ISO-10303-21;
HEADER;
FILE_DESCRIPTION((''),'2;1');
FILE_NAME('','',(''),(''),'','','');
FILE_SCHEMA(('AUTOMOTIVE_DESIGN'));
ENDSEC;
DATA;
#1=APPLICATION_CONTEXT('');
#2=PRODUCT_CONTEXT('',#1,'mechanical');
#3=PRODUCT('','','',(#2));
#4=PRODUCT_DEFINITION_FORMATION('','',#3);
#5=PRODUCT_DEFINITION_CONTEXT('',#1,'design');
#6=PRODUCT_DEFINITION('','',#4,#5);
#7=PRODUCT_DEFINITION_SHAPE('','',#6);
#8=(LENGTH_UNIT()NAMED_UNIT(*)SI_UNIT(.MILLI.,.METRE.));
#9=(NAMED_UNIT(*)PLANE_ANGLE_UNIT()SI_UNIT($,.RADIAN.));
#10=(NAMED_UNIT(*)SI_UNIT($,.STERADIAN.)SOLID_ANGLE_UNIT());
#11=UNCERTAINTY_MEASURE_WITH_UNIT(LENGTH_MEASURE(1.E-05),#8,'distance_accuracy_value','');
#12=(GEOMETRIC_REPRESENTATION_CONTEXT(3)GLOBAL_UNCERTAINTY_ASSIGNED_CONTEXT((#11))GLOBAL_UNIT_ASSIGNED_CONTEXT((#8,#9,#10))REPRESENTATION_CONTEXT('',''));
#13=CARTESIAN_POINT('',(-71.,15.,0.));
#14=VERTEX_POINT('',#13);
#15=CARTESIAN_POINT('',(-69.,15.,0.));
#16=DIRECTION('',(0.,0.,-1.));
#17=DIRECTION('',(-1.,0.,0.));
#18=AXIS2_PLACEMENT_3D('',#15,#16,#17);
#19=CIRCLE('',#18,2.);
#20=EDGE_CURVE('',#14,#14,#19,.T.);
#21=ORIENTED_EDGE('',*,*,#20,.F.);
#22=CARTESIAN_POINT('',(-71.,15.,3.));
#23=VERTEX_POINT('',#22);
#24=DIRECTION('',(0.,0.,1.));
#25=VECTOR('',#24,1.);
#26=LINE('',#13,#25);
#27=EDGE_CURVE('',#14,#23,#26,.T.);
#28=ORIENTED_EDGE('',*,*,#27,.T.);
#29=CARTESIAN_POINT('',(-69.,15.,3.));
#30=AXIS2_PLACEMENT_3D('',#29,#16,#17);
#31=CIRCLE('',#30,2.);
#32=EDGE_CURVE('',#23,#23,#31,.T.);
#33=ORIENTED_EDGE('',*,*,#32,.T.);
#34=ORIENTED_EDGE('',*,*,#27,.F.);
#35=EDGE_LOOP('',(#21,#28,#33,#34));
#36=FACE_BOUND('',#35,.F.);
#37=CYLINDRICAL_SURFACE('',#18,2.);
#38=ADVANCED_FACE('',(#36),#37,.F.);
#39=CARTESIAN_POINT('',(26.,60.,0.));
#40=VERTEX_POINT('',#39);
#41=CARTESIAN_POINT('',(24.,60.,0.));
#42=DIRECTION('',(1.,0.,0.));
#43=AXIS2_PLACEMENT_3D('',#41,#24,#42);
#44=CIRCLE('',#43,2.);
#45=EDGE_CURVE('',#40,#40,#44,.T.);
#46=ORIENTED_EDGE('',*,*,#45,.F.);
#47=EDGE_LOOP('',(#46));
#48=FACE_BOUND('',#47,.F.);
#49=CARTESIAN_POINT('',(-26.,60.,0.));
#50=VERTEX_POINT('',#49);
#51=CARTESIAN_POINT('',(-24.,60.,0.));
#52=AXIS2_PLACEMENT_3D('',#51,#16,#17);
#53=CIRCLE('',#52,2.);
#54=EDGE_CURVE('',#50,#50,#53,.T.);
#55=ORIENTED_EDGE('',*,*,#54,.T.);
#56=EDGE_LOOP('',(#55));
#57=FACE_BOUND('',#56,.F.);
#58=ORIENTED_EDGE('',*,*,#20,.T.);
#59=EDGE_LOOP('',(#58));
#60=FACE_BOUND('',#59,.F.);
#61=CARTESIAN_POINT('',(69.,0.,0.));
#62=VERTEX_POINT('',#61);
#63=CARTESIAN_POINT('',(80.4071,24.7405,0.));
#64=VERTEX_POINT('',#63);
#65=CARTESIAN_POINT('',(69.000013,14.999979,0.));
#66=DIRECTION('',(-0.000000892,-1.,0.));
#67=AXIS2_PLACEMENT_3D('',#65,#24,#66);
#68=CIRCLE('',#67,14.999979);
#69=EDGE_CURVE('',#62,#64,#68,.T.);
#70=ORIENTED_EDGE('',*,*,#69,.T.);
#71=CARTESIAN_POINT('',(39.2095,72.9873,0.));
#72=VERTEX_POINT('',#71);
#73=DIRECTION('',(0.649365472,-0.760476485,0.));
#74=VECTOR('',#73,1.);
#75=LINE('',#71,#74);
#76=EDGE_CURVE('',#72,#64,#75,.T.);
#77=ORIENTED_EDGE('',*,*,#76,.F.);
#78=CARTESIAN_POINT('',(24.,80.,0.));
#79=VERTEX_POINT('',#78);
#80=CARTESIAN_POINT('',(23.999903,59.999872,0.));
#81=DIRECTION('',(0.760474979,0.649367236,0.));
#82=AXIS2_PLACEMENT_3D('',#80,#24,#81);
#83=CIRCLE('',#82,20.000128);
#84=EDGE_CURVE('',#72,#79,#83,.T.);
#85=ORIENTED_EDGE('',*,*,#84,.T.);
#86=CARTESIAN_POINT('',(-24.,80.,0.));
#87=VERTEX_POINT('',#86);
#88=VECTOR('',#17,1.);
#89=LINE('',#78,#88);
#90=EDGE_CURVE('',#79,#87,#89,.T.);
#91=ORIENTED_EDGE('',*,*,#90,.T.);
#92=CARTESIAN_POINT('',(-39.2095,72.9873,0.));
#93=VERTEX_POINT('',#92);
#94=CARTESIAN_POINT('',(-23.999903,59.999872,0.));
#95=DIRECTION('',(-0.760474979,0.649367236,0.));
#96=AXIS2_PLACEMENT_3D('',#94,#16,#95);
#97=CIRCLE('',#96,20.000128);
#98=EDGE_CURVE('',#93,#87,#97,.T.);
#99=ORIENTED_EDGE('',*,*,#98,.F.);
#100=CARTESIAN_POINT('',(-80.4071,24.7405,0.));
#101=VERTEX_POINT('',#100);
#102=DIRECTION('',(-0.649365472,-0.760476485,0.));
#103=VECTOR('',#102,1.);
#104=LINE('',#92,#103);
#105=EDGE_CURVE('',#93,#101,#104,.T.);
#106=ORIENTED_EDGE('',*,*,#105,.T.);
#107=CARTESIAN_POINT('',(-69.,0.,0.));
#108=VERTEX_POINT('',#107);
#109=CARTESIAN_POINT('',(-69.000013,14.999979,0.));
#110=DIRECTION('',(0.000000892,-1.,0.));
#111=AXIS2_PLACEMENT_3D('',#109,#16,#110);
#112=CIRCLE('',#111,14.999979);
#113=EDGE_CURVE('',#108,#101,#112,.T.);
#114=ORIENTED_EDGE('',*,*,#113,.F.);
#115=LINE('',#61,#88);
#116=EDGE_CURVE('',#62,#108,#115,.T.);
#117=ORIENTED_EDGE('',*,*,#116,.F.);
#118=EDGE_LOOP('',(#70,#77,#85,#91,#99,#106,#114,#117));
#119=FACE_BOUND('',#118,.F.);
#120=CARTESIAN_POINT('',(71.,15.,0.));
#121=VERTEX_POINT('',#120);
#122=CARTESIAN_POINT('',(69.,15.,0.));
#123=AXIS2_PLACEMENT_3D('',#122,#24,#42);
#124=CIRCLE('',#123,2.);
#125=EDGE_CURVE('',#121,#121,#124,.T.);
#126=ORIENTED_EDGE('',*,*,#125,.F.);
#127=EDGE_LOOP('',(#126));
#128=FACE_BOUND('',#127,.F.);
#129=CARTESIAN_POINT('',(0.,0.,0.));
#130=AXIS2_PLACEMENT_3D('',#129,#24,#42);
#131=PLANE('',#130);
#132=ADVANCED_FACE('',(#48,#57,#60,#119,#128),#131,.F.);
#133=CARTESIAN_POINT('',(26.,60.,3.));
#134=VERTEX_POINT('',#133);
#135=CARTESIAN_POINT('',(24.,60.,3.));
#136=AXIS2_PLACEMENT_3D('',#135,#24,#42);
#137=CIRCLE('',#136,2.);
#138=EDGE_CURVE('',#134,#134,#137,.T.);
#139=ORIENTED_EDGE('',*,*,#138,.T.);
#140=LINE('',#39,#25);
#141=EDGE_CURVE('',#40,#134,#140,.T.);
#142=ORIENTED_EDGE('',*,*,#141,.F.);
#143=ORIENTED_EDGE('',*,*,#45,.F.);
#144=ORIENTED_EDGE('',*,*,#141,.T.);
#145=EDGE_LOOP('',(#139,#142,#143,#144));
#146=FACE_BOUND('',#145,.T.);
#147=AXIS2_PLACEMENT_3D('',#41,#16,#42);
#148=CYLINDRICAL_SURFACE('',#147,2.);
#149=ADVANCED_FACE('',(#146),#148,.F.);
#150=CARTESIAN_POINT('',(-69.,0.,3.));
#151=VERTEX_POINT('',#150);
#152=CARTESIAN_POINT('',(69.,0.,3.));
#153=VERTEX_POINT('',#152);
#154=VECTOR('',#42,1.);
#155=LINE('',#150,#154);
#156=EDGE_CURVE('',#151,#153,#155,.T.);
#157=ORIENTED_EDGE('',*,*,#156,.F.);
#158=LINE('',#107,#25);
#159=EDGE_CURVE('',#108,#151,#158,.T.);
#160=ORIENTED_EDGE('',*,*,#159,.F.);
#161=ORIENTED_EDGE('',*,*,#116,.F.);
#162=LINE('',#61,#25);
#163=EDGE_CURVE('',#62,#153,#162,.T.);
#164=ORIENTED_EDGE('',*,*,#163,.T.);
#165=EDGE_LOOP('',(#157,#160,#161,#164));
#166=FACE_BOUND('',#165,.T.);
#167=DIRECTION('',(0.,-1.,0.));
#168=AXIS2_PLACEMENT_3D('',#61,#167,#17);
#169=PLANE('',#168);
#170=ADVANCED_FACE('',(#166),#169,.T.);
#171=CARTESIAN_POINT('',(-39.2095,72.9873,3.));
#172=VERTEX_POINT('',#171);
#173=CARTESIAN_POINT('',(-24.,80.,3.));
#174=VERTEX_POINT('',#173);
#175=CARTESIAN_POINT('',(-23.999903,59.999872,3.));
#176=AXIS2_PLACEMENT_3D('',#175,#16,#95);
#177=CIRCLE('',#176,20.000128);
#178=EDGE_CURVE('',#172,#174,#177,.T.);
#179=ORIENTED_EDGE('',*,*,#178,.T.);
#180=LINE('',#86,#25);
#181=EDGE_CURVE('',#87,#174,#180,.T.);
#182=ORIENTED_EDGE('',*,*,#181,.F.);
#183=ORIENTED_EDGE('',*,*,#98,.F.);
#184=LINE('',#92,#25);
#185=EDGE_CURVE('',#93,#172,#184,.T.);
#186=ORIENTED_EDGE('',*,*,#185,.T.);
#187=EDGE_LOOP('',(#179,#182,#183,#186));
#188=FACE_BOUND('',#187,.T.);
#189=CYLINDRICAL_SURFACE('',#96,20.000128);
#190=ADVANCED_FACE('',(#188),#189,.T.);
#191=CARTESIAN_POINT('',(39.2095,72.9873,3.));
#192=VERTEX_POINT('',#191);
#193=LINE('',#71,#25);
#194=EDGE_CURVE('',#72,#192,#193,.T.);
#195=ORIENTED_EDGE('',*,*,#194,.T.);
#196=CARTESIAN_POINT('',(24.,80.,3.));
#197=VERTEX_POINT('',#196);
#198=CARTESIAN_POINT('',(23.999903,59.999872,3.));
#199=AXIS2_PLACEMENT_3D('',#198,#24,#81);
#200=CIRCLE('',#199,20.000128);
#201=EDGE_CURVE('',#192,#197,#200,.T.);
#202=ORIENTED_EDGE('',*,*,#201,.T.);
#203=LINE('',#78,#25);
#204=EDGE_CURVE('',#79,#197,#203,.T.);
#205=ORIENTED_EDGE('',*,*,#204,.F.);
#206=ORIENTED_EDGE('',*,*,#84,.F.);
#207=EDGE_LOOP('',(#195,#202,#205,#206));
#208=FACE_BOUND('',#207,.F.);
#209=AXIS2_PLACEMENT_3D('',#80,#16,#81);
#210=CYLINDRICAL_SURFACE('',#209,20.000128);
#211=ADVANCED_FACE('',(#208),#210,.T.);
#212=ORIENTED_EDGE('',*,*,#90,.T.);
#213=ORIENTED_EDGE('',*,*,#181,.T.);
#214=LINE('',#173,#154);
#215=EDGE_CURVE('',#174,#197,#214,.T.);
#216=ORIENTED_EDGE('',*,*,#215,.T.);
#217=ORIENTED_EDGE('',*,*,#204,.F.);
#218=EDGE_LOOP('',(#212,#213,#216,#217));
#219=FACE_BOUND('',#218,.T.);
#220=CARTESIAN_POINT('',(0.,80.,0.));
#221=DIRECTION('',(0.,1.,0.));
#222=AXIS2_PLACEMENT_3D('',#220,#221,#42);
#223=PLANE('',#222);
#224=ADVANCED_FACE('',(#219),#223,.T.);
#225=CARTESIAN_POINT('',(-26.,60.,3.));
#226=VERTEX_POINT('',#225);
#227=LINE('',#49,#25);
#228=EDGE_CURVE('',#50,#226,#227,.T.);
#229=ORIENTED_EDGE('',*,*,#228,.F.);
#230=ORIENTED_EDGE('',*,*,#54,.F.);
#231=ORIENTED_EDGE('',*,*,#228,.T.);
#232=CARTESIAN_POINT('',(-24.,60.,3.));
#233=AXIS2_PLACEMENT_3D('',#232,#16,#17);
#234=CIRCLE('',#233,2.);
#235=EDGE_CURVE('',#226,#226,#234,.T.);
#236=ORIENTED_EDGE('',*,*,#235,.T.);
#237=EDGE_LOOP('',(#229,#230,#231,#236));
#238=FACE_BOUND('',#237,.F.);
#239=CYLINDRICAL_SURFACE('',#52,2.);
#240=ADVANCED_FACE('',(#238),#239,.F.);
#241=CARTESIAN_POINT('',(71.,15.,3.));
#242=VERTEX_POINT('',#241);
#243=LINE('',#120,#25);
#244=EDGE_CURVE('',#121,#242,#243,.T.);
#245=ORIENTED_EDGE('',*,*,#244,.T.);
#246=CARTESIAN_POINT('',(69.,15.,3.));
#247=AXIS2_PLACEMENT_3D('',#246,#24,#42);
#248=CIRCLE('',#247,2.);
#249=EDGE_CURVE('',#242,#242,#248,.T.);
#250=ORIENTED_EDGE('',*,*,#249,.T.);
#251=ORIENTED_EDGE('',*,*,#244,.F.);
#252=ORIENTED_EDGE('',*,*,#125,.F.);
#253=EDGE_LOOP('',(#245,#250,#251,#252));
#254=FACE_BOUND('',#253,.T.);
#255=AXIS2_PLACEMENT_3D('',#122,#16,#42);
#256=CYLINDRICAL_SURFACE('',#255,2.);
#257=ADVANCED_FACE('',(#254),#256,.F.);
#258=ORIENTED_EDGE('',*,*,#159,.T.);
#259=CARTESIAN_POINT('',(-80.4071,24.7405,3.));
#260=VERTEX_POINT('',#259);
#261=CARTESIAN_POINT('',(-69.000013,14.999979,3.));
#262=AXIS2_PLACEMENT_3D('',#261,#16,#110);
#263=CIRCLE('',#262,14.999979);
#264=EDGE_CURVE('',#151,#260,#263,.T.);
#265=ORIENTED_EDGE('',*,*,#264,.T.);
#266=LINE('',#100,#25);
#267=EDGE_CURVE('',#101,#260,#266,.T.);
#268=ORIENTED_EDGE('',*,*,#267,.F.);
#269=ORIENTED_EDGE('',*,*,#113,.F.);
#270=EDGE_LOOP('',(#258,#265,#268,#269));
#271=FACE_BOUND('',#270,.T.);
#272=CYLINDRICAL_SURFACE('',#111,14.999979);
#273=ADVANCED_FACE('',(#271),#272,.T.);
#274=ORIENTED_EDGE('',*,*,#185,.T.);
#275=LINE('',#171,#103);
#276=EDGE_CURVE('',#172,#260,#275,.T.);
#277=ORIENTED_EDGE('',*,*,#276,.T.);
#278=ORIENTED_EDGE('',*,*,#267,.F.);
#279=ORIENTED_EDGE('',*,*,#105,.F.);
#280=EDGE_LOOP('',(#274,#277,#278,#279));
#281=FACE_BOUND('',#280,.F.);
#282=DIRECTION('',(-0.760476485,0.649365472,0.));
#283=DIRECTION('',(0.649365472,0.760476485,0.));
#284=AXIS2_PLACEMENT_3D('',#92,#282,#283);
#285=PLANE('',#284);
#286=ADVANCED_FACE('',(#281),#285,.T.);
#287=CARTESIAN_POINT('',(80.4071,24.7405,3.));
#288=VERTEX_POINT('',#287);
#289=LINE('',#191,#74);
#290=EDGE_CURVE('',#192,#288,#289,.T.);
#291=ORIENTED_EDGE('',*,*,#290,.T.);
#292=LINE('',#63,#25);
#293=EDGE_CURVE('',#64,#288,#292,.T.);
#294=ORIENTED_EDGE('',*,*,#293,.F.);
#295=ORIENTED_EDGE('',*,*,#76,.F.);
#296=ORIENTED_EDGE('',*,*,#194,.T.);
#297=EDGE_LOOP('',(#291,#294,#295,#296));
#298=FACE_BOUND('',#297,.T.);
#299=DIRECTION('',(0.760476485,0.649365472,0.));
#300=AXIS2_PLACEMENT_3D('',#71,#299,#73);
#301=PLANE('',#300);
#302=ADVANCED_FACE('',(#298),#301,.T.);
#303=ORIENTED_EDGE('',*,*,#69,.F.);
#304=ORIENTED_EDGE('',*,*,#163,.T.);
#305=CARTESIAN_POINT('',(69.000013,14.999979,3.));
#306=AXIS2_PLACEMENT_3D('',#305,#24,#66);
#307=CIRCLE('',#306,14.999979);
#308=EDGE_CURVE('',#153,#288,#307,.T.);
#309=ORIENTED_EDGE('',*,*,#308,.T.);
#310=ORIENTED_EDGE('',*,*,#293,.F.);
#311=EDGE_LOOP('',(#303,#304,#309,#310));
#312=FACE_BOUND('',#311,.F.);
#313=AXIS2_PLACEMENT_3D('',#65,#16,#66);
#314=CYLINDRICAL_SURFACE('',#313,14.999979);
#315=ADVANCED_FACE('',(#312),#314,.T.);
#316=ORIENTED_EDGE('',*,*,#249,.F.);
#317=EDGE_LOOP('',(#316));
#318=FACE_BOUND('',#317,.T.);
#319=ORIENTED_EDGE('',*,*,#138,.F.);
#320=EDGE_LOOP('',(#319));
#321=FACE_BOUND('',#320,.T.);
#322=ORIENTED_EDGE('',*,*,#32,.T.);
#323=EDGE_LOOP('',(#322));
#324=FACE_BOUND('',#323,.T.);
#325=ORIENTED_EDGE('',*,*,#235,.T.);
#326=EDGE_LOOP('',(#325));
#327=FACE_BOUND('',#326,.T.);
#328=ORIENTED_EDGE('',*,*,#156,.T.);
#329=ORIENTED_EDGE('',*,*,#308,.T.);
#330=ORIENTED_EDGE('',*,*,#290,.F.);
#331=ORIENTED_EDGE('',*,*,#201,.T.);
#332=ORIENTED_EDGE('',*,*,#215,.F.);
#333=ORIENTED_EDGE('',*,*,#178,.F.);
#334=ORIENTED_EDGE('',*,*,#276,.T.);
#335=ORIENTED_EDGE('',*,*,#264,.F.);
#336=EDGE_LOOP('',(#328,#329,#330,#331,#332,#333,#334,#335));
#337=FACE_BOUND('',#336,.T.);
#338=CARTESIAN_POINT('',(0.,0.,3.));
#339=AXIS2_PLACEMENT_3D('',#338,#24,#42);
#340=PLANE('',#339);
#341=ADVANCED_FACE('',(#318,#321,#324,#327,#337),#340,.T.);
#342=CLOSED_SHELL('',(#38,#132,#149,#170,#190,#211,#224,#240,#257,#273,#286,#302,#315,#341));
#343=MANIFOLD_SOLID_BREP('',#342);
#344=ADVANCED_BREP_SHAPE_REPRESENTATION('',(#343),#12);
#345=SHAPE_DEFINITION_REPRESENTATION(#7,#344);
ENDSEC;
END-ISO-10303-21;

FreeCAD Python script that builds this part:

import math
import FreeCAD as App
import Part
import Sketcher
Q = App.Units.Quantity

doc = App.newDocument("Part")
body = doc.addObject("PartDesign::Body", "Body")

sketch1 = body.newObject("Sketcher::SketchObject", "Sketch")
sketch1.AttachmentSupport = (doc.getObject("XY_Plane"), [""])
sketch1.MapMode = "FlatFace"
sketch1.addGeometry(Part.LineSegment(App.Vector(24, 80, 0), App.Vector(0, 80, 0)), False)
sketch1.addGeometry(Part.LineSegment(App.Vector(0, 80, 0), App.Vector(0, 0, 0)), False)
sketch1.addGeometry(Part.LineSegment(App.Vector(0, 0, 0), App.Vector(69, 0, 0)), False)
sketch1.addGeometry(Part.ArcOfCircle(Part.Circle(App.Vector(69, 15, 0), App.Vector(0, 0, 1), 15), math.radians(-90), math.radians(40)), False)
sketch1.addGeometry(Part.LineSegment(App.Vector(80.4, 24.7, 0), App.Vector(39.2, 73, 0)), False)
sketch1.addGeometry(Part.ArcOfCircle(Part.Circle(App.Vector(24, 60, 0), App.Vector(0, 0, 1), 20), math.radians(40), math.radians(90)), False)
sketch1.addGeometry(Part.Circle(App.Vector(69, 15, 0), App.Vector(0, 0, 1), 2), False)
sketch1.addGeometry(Part.Circle(App.Vector(24, 60, 0), App.Vector(0, 0, 1), 2), False)
sketch1.addConstraint(Sketcher.Constraint("Coincident", 0, 2, 1, 1))
sketch1.addConstraint(Sketcher.Constraint("Coincident", 1, 2, 2, 1))
sketch1.addConstraint(Sketcher.Constraint("Tangent", 2, 2, 3, 1))
sketch1.addConstraint(Sketcher.Constraint("Tangent", 3, 2, 4, 1))
sketch1.addConstraint(Sketcher.Constraint("Tangent", 4, 2, 5, 1))
sketch1.addConstraint(Sketcher.Constraint("Tangent", 5, 2, 0, 1))
sketch1.addConstraint(Sketcher.Constraint("Horizontal", 0))
sketch1.addConstraint(Sketcher.Constraint("Vertical", 1))
sketch1.addConstraint(Sketcher.Constraint("Horizontal", 2))
sketch1.addConstraint(Sketcher.Constraint("Coincident", 1, 2, -1, 1))
sketch1.addConstraint(Sketcher.Constraint("Coincident", 6, 3, 3, 3))
sketch1.addConstraint(Sketcher.Constraint("Coincident", 7, 3, 5, 3))
sketch1.addConstraint(Sketcher.Constraint("Equal", 6, 7))
sketch1.addConstraint(Sketcher.Constraint("Diameter", 6, Q("4 mm")))
sketch1.addConstraint(Sketcher.Constraint("Radius", 3, Q("15 mm")))
sketch1.addConstraint(Sketcher.Constraint("Radius", 5, Q("20 mm")))
sketch1.addConstraint(Sketcher.Constraint("DistanceX", 0, 2, 0, 1, Q("24 mm")))
sketch1.addConstraint(Sketcher.Constraint("DistanceX", 5, 3, 3, 3, Q("45 mm")))
sketch1.addConstraint(Sketcher.Constraint("DistanceY", 3, 3, 5, 3, Q("45 mm")))
pad1 = body.newObject("PartDesign::Pad", "Pad")
pad1.Profile = sketch1
pad1.Length = 3
doc.recompute()

mirrored = body.newObject("PartDesign::Mirrored", "Mirrored")
mirrored.Originals = [pad1]
mirrored.MirrorPlane = (doc.getObject("YZ_Plane"), [""])
body.Tip = mirrored

doc.recompute()
